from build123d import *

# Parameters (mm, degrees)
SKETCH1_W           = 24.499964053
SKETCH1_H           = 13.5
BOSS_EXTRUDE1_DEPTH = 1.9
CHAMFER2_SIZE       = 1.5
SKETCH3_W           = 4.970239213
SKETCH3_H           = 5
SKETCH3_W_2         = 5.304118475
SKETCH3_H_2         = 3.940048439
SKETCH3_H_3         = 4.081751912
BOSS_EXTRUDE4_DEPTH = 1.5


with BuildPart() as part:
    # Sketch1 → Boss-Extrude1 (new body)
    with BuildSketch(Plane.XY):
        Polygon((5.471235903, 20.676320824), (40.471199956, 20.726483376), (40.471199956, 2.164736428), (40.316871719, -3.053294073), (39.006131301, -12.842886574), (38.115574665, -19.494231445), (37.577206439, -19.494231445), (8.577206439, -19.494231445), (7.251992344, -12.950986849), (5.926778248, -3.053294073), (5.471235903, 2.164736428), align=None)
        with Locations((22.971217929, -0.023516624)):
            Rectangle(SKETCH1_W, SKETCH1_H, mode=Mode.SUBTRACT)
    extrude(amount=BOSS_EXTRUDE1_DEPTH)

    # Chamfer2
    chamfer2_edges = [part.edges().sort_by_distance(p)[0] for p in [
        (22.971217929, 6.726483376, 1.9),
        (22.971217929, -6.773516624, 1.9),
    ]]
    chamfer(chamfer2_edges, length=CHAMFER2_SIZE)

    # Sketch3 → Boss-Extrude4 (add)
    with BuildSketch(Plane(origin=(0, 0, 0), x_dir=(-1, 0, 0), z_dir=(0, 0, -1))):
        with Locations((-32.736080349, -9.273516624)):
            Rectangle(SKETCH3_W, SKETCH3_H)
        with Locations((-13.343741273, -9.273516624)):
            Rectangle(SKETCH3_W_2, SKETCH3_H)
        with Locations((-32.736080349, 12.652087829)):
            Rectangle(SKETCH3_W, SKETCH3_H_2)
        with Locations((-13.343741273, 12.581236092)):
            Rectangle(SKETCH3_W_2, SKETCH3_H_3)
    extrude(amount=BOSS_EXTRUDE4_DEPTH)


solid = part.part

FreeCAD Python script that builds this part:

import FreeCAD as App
import Part
import Sketcher

V = App.Vector
Q = App.Units.Quantity


def edges_at(feature, points):
    """Names of the edges that pass closest to the given points."""
    edges = feature.Shape.Edges
    near = lambda p: min(range(len(edges)), key=lambda i: edges[i].distToShape(Part.Vertex(*p))[0])
    return sorted({f"Edge{near(p) + 1}" for p in points})

doc = App.newDocument("Part")
params = doc.addObject("Spreadsheet::Sheet", "Params")
for row, (alias, value) in enumerate([
    ("sketch1_length", "35 mm"),
    ("sketch1_height", "13.5 mm"),
    ("pad1_length", "1.9 mm"),
    ("chamfer_size", "1.5 mm"),
    ("sketch2_height", "5 mm"),
    ("pad2_length", "1.5 mm"),
], start=1):
    params.set(f"A{row}", alias)
    params.set(f"B{row}", "=" + value)
    params.setAlias(f"B{row}", alias)

body = doc.addObject("PartDesign::Body", "Body")

# Sketch on XY plane
sketch1 = body.newObject("Sketcher::SketchObject", "Sketch")
sketch1.AttachmentSupport = (doc.getObject("XY_Plane"), [""])
sketch1.MapMode = "FlatFace"
sketch1.addGeometry([
    Part.LineSegment(V(40, 21, 0), V(5, 21, 0)),  # 0
    Part.LineSegment(V(5, 21, 0), V(5, 2, 0)),  # 1
    Part.LineSegment(V(5, 2, 0), V(6, -3, 0)),  # 2
    Part.LineSegment(V(6, -3, 0), V(7, -13, 0)),  # 3
    Part.LineSegment(V(7, -13, 0), V(9, -19, 0)),  # 4
    Part.LineSegment(V(9, -19, 0), V(38, -19, 0)),  # 5
    Part.LineSegment(V(38, -19, 0), V(39, -13, 0)),  # 6
    Part.LineSegment(V(39, -13, 0), V(40, -3, 0)),  # 7
    Part.LineSegment(V(40, -3, 0), V(40, 2, 0)),  # 8
    Part.LineSegment(V(40, 2, 0), V(40, 21, 0)),  # 9
    Part.LineSegment(V(11, -7, 0), V(11, 7, 0)),  # 10
    Part.LineSegment(V(11, 7, 0), V(35, 7, 0)),  # 11
    Part.LineSegment(V(35, 7, 0), V(35, -7, 0)),  # 12
    Part.LineSegment(V(35, -7, 0), V(11, -7, 0)),  # 13
], False)
sketch1.addConstraint([
    Sketcher.Constraint("Coincident", 0, 2, 1, 1),
    Sketcher.Constraint("Coincident", 1, 2, 2, 1),
    Sketcher.Constraint("Coincident", 2, 2, 3, 1),
    Sketcher.Constraint("Coincident", 3, 2, 4, 1),
    Sketcher.Constraint("Coincident", 4, 2, 5, 1),
    Sketcher.Constraint("Coincident", 5, 2, 6, 1),
    Sketcher.Constraint("Coincident", 6, 2, 7, 1),
    Sketcher.Constraint("Coincident", 7, 2, 8, 1),
    Sketcher.Constraint("Coincident", 8, 2, 9, 1),
    Sketcher.Constraint("Coincident", 9, 2, 0, 1),
    Sketcher.Constraint("Coincident", 10, 2, 11, 1),
    Sketcher.Constraint("Coincident", 11, 2, 12, 1),
    Sketcher.Constraint("Coincident", 12, 2, 13, 1),
    Sketcher.Constraint("Coincident", 13, 2, 10, 1),
    Sketcher.Constraint("Vertical", 1),
    Sketcher.Constraint("Horizontal", 5),
    Sketcher.Constraint("Vertical", 9),
    Sketcher.Constraint("Vertical", 10),
    Sketcher.Constraint("Horizontal", 11),
    Sketcher.Constraint("Vertical", 12),
    Sketcher.Constraint("Horizontal", 13),
    Sketcher.Constraint("Parallel", 6, 7),
    Sketcher.Constraint("Horizontal", 2, 2, 7, 2),
    Sketcher.Constraint("Horizontal", 1, 2, 8, 2),
    Sketcher.Constraint("Distance", 0, Q("35 mm")),
    Sketcher.Constraint("DistanceY", 10, 1, 10, 2, Q("13.5 mm")),
    Sketcher.Constraint("DistanceY", 11, 2, 9, 2, Q("14 mm")),
    Sketcher.Constraint("DistanceX", 1, 2, 10, 2, Q("5.25 mm")),
    Sketcher.Constraint("DistanceX", 11, 2, 8, 2, Q("5.25 mm")),
    Sketcher.Constraint("Distance", 6, Q("6.710699 mm")),
    Sketcher.Constraint("DistanceX", 5, 1, 5, 2, Q("29.538368 mm")),
    Sketcher.Constraint("DistanceX", -1, 1, 8, 2, Q("40.4712 mm")),
    Sketcher.Constraint("DistanceY", 3, 2, 6, 2, Q("0.1081 mm")),
    Sketcher.Constraint("Distance", 7, Q("9.876951 mm")),
    Sketcher.Constraint("DistanceY", 1, 2, 1, 1, Q("18.511584 mm")),
    Sketcher.Constraint("DistanceY", 9, 1, 9, 2, Q("18.561747 mm")),
    Sketcher.Constraint("DistanceY", -1, 1, 0, 2, Q("20.676321 mm")),
    Sketcher.Constraint("DistanceX", -1, 1, 2, 2, Q("5.926778 mm")),
    Sketcher.Constraint("DistanceY", 4, 2, -1, 1, Q("19.494231 mm")),
    Sketcher.Constraint("DistanceX", -1, 1, 6, 2, Q("39.006131 mm")),
    Sketcher.Constraint("DistanceX", -1, 1, 7, 2, Q("40.316872 mm")),
    Sketcher.Constraint("DistanceX", 3, 2, 6, 2, Q("31.754139 mm")),
])
sketch1.setExpression("Constraints[24]", "Params.sketch1_length")
sketch1.setExpression("Constraints[25]", "Params.sketch1_height")
pad1 = body.newObject("PartDesign::Pad", "Pad")
pad1.Profile = sketch1
pad1.setExpression("Length", "Params.pad1_length")
doc.recompute()

chamfer = body.newObject("PartDesign::Chamfer", "Chamfer")
chamfer.Base = (pad1, edges_at(pad1, [(22.971, 6.726, 1.9), (22.971, -6.774, 1.9)]))
chamfer.setExpression("Size", "Params.chamfer_size")

# Sketch on XY plane
sketch2 = body.newObject("Sketcher::SketchObject", "Sketch001")
sketch2.AttachmentSupport = (doc.getObject("XY_Plane"), [""])
sketch2.MapMode = "FlatFace"
sketch2.addGeometry([
    Part.LineSegment(V(35.2, -6.8, 0), V(35.2, -11.8, 0)),  # 0
    Part.LineSegment(V(35.2, -11.8, 0), V(30.3, -11.8, 0)),  # 1
    Part.LineSegment(V(30.3, -11.8, 0), V(30.3, -6.8, 0)),  # 2
    Part.LineSegment(V(30.3, -6.8, 0), V(35.2, -6.8, 0)),  # 3
    Part.LineSegment(V(16, -6.8, 0), V(16, -11.8, 0)),  # 4
    Part.LineSegment(V(16, -11.8, 0), V(10.7, -11.8, 0)),  # 5
    Part.LineSegment(V(10.7, -11.8, 0), V(10.7, -6.8, 0)),  # 6
    Part.LineSegment(V(10.7, -6.8, 0), V(16, -6.8, 0)),  # 7
    Part.LineSegment(V(35.2, 14.6, 0), V(35.2, 10.7, 0)),  # 8
    Part.LineSegment(V(35.2, 10.7, 0), V(30.3, 10.7, 0)),  # 9
    Part.LineSegment(V(30.3, 10.7, 0), V(30.3, 14.6, 0)),  # 10
    Part.LineSegment(V(30.3, 14.6, 0), V(35.2, 14.6, 0)),  # 11
    Part.LineSegment(V(16, 14.6, 0), V(16, 10.5, 0)),  # 12
    Part.LineSegment(V(16, 10.5, 0), V(10.7, 10.5, 0)),  # 13
    Part.LineSegment(V(10.7, 10.5, 0), V(10.7, 14.6, 0)),  # 14
    Part.LineSegment(V(10.7, 14.6, 0), V(16, 14.6, 0)),  # 15
], False)
sketch2.addConstraint([
    Sketcher.Constraint("Coincident", 0, 2, 1, 1),
    Sketcher.Constraint("Coincident", 1, 2, 2, 1),
    Sketcher.Constraint("Coincident", 2, 2, 3, 1),
    Sketcher.Constraint("Coincident", 3, 2, 0, 1),
    Sketcher.Constraint("Coincident", 4, 2, 5, 1),
    Sketcher.Constraint("Coincident", 5, 2, 6, 1),
    Sketcher.Constraint("Coincident", 6, 2, 7, 1),
    Sketcher.Constraint("Coincident", 7, 2, 4, 1),
    Sketcher.Constraint("Coincident", 8, 2, 9, 1),
    Sketcher.Constraint("Coincident", 9, 2, 10, 1),
    Sketcher.Constraint("Coincident", 10, 2, 11, 1),
    Sketcher.Constraint("Coincident", 11, 2, 8, 1),
    Sketcher.Constraint("Coincident", 12, 2, 13, 1),
    Sketcher.Constraint("Coincident", 13, 2, 14, 1),
    Sketcher.Constraint("Coincident", 14, 2, 15, 1),
    Sketcher.Constraint("Coincident", 15, 2, 12, 1),
    Sketcher.Constraint("Vertical", 0),
    Sketcher.Constraint("Horizontal", 1),
    Sketcher.Constraint("Vertical", 2),
    Sketcher.Constraint("Horizontal", 3),
    Sketcher.Constraint("Vertical", 4),
    Sketcher.Constraint("Horizontal", 5),
    Sketcher.Constraint("Vertical", 6),
    Sketcher.Constraint("Horizontal", 7),
    Sketcher.Constraint("Vertical", 8),
    Sketcher.Constraint("Horizontal", 9),
    Sketcher.Constraint("Vertical", 10),
    Sketcher.Constraint("Horizontal", 11),
    Sketcher.Constraint("Vertical", 12),
    Sketcher.Constraint("Horizontal", 13),
    Sketcher.Constraint("Vertical", 14),
    Sketcher.Constraint("Horizontal", 15),
    Sketcher.Constraint("Horizontal", 1, 2, 4, 2),
    Sketcher.Constraint("Horizontal", 3, 2, 6, 2),
    Sketcher.Constraint("Horizontal", 11, 2, 14, 2),
    Sketcher.Constraint("Vertical", 3, 2, 8, 2),
    Sketcher.Constraint("Vertical", 2, 2, 9, 2),
    Sketcher.Constraint("Vertical", 7, 2, 12, 2),
    Sketcher.Constraint("Vertical", 6, 2, 13, 2),
    Sketcher.Constraint("DistanceY", 0, 2, 0, 1, Q("5 mm")),
    Sketcher.Constraint("DistanceX", 1, 2, 1, 1, Q("4.970239 mm")),
    Sketcher.Constraint("DistanceX", 5, 2, 5, 1, Q("5.304118 mm")),
    Sketcher.Constraint("DistanceY", 8, 2, 8, 1, Q("3.940048 mm")),
    Sketcher.Constraint("DistanceY", 12, 2, 12, 1, Q("4.081752 mm")),
    Sketcher.Constraint("DistanceX", -1, 1, 0, 2, Q("35.2212 mm")),
    Sketcher.Constraint("DistanceX", -1, 1, 4, 2, Q("15.995801 mm")),
    Sketcher.Constraint("DistanceY", -1, 1, 12, 2, Q("10.54036 mm")),
    Sketcher.Constraint("DistanceY", 3, 2, 8, 2, Q("17.45558 mm")),
])
sketch2.setExpression("Constraints[39]", "Params.sketch2_height")
pad2 = body.newObject("PartDesign::Pad", "Pad001")
pad2.Profile = sketch2
pad2.setExpression("Length", "Params.pad2_length")
pad2.Reversed = True

doc.recompute()
